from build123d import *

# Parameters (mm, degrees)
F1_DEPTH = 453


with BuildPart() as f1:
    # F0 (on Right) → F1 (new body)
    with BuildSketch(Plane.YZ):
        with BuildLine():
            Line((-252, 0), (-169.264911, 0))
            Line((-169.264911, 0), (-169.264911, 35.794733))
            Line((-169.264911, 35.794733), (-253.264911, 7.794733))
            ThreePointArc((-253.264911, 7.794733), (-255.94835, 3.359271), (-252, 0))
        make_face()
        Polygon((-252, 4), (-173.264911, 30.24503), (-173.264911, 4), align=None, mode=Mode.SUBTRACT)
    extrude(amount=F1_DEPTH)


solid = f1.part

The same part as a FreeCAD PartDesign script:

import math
import FreeCAD as App
import Part
import Sketcher
Q = App.Units.Quantity


def add_polygon(sketch, points):
    """Adds a closed chain of lines whose ends are joined by coincident constraints."""
    first, n = sketch.GeometryCount, len(points)
    for a, b in zip(points, points[1:] + points[:1]):
        sketch.addGeometry(Part.LineSegment(App.Vector(*a, 0), App.Vector(*b, 0)), False)
    for i in range(n):
        sketch.addConstraint(Sketcher.Constraint("Coincident", first + i, 2, first + (i + 1) % n, 1))

doc = App.newDocument("Part")
body = doc.addObject("PartDesign::Body", "Body")

# Sketch on YZ plane
sketch1 = body.newObject("Sketcher::SketchObject", "Sketch")
sketch1.AttachmentSupport = (doc.getObject("YZ_Plane"), [""])
sketch1.MapMode = "FlatFace"
sketch1.addGeometry(Part.LineSegment(App.Vector(-252, 0, 0), App.Vector(-169.3, 0, 0)), False)  # 0
sketch1.addGeometry(Part.LineSegment(App.Vector(-169.3, 0, 0), App.Vector(-169.3, 35.8, 0)), False)  # 1
sketch1.addGeometry(Part.LineSegment(App.Vector(-169.3, 35.8, 0), App.Vector(-253.3, 7.8, 0)), False)  # 2
sketch1.addGeometry(Part.ArcOfCircle(Part.Circle(App.Vector(-252, 4, 0), App.Vector(0, 0, 1), 4), math.radians(108), math.radians(270)), False)  # 3
add_polygon(sketch1, [(-173.3, 4), (-252, 4), (-173.3, 30.2)])  # lines 4-6
sketch1.addConstraint(Sketcher.Constraint("Coincident", 0, 2, 1, 1))
sketch1.addConstraint(Sketcher.Constraint("Coincident", 1, 2, 2, 1))
sketch1.addConstraint(Sketcher.Constraint("Tangent", 2, 2, 3, 1))
sketch1.addConstraint(Sketcher.Constraint("Tangent", 3, 2, 0, 1))
sketch1.addConstraint(Sketcher.Constraint("Horizontal", 0))
sketch1.addConstraint(Sketcher.Constraint("Vertical", 1))
sketch1.addConstraint(Sketcher.Constraint("Horizontal", 4))
sketch1.addConstraint(Sketcher.Constraint("Vertical", 6))
sketch1.addConstraint(Sketcher.Constraint("Coincident", 4, 2, 3, 3))
sketch1.addConstraint(Sketcher.Constraint("PointOnObject", 0, 2, -1))
sketch1.addConstraint(Sketcher.Constraint("Parallel", 2, 5))
sketch1.addConstraint(Sketcher.Constraint("Radius", 3, Q("4 mm")))
sketch1.addConstraint(Sketcher.Constraint("DistanceX", 3, 3, -1, 1, Q("252 mm")))
sketch1.addConstraint(Sketcher.Constraint("DistanceX", 2, 2, 0, 2, Q("84 mm")))
sketch1.addConstraint(Sketcher.Constraint("DistanceY", 2, 2, 1, 2, Q("28 mm")))
sketch1.addConstraint(Sketcher.Constraint("DistanceX", 5, 2, 1, 2, Q("4 mm")))
pad1 = body.newObject("PartDesign::Pad", "Pad")
pad1.Profile = sketch1
pad1.Length = 453

doc.recompute()
